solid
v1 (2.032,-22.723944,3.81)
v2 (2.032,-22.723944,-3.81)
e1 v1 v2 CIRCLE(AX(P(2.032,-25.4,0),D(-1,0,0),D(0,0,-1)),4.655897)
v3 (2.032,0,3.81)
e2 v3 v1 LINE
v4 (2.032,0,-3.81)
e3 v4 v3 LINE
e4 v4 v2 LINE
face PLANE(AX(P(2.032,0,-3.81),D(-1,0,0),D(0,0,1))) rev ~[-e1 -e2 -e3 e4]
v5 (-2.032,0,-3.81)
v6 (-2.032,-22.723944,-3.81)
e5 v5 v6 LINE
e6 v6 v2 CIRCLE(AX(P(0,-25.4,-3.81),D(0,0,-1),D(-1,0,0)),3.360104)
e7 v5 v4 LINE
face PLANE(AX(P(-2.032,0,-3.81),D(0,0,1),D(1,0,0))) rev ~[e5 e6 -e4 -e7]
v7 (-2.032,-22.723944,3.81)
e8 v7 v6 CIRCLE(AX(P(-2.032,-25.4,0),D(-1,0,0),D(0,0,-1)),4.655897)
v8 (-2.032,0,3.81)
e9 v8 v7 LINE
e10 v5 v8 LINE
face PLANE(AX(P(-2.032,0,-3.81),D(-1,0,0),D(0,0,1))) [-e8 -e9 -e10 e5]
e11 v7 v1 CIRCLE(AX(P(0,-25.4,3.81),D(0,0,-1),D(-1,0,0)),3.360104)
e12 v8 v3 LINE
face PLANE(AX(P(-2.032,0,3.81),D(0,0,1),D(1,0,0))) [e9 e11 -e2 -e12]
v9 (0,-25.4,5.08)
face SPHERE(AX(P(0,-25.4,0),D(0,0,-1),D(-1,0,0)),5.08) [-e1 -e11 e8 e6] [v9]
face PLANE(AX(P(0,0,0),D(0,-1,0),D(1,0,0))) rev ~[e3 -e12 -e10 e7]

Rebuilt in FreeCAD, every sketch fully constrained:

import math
import FreeCAD as App
import Part
import Sketcher
Q = App.Units.Quantity


def add_polygon(sketch, points):
    """Adds a closed chain of lines whose ends are joined by coincident constraints."""
    first, n = sketch.GeometryCount, len(points)
    for a, b in zip(points, points[1:] + points[:1]):
        sketch.addGeometry(Part.LineSegment(App.Vector(*a, 0), App.Vector(*b, 0)), False)
    for i in range(n):
        sketch.addConstraint(Sketcher.Constraint("Coincident", first + i, 2, first + (i + 1) % n, 1))

doc = App.newDocument("Part")
body = doc.addObject("PartDesign::Body", "Body")

# Sketch on XZ plane
sketch1 = doc.addObject("Sketcher::SketchObject", "Sketch")
body.addObject(sketch1)
sketch1.AttachmentSupport = (doc.XZ_Plane, [""])
sketch1.MapMode = "FlatFace"
add_polygon(sketch1, [(-2.032, 3.81), (-2.032, -3.81), (2.032, -3.81), (2.032, 3.81)])  # lines 0-3
sketch1.addConstraint([
    Sketcher.Constraint("Vertical", 0),
    Sketcher.Constraint("Horizontal", 1),
    Sketcher.Constraint("Vertical", 2),
    Sketcher.Constraint("Horizontal", 3),
    Sketcher.Constraint("Symmetric", 0, 2, 2, 2, -1, 1),
    Sketcher.Constraint("DistanceY", 0, 2, 0, 1, Q("0.3 in")),
    Sketcher.Constraint("DistanceX", 1, 1, 1, 2, Q("0.16 in")),
])
pad1 = doc.addObject("PartDesign::Pad", "Pad")
body.addObject(pad1)
pad1.Profile = sketch1
pad1.Length = Q("1 in")

# Sketch on XZ plane
sketch2 = doc.addObject("Sketcher::SketchObject", "Sketch001")
body.addObject(sketch2)
sketch2.AttachmentSupport = (doc.XZ_Plane, [""])
sketch2.MapMode = "FlatFace"
sketch2.AttachmentOffset = App.Placement(App.Vector(0, 0, 1 * 25.4), App.Rotation())
sketch2.addGeometry([
    Part.LineSegment(App.Vector(0, -5.08, 0), App.Vector(0, 5.08, 0)),
    Part.ArcOfCircle(Part.Circle(App.Vector(0, 0, 0), App.Vector(0, 0, 1), 5.08), math.radians(90), math.radians(270)),
], False)
sketch2.addConstraint([
    Sketcher.Constraint("Coincident", 0, 1, 1, 2),
    Sketcher.Constraint("Coincident", 1, 1, 0, 2),
    Sketcher.Constraint("Vertical", 0),
    Sketcher.Constraint("Coincident", 1, 3, -1, 1),
    Sketcher.Constraint("PointOnObject", 0, 1, -2),
    Sketcher.Constraint("Radius", 1, Q("0.2 in")),
])
revolution = doc.addObject("PartDesign::Revolution", "Revolution")
body.addObject(revolution)
revolution.Profile = sketch2
revolution.ReferenceAxis = (sketch2, ["V_Axis"])
revolution.Angle = 360

doc.recompute()
